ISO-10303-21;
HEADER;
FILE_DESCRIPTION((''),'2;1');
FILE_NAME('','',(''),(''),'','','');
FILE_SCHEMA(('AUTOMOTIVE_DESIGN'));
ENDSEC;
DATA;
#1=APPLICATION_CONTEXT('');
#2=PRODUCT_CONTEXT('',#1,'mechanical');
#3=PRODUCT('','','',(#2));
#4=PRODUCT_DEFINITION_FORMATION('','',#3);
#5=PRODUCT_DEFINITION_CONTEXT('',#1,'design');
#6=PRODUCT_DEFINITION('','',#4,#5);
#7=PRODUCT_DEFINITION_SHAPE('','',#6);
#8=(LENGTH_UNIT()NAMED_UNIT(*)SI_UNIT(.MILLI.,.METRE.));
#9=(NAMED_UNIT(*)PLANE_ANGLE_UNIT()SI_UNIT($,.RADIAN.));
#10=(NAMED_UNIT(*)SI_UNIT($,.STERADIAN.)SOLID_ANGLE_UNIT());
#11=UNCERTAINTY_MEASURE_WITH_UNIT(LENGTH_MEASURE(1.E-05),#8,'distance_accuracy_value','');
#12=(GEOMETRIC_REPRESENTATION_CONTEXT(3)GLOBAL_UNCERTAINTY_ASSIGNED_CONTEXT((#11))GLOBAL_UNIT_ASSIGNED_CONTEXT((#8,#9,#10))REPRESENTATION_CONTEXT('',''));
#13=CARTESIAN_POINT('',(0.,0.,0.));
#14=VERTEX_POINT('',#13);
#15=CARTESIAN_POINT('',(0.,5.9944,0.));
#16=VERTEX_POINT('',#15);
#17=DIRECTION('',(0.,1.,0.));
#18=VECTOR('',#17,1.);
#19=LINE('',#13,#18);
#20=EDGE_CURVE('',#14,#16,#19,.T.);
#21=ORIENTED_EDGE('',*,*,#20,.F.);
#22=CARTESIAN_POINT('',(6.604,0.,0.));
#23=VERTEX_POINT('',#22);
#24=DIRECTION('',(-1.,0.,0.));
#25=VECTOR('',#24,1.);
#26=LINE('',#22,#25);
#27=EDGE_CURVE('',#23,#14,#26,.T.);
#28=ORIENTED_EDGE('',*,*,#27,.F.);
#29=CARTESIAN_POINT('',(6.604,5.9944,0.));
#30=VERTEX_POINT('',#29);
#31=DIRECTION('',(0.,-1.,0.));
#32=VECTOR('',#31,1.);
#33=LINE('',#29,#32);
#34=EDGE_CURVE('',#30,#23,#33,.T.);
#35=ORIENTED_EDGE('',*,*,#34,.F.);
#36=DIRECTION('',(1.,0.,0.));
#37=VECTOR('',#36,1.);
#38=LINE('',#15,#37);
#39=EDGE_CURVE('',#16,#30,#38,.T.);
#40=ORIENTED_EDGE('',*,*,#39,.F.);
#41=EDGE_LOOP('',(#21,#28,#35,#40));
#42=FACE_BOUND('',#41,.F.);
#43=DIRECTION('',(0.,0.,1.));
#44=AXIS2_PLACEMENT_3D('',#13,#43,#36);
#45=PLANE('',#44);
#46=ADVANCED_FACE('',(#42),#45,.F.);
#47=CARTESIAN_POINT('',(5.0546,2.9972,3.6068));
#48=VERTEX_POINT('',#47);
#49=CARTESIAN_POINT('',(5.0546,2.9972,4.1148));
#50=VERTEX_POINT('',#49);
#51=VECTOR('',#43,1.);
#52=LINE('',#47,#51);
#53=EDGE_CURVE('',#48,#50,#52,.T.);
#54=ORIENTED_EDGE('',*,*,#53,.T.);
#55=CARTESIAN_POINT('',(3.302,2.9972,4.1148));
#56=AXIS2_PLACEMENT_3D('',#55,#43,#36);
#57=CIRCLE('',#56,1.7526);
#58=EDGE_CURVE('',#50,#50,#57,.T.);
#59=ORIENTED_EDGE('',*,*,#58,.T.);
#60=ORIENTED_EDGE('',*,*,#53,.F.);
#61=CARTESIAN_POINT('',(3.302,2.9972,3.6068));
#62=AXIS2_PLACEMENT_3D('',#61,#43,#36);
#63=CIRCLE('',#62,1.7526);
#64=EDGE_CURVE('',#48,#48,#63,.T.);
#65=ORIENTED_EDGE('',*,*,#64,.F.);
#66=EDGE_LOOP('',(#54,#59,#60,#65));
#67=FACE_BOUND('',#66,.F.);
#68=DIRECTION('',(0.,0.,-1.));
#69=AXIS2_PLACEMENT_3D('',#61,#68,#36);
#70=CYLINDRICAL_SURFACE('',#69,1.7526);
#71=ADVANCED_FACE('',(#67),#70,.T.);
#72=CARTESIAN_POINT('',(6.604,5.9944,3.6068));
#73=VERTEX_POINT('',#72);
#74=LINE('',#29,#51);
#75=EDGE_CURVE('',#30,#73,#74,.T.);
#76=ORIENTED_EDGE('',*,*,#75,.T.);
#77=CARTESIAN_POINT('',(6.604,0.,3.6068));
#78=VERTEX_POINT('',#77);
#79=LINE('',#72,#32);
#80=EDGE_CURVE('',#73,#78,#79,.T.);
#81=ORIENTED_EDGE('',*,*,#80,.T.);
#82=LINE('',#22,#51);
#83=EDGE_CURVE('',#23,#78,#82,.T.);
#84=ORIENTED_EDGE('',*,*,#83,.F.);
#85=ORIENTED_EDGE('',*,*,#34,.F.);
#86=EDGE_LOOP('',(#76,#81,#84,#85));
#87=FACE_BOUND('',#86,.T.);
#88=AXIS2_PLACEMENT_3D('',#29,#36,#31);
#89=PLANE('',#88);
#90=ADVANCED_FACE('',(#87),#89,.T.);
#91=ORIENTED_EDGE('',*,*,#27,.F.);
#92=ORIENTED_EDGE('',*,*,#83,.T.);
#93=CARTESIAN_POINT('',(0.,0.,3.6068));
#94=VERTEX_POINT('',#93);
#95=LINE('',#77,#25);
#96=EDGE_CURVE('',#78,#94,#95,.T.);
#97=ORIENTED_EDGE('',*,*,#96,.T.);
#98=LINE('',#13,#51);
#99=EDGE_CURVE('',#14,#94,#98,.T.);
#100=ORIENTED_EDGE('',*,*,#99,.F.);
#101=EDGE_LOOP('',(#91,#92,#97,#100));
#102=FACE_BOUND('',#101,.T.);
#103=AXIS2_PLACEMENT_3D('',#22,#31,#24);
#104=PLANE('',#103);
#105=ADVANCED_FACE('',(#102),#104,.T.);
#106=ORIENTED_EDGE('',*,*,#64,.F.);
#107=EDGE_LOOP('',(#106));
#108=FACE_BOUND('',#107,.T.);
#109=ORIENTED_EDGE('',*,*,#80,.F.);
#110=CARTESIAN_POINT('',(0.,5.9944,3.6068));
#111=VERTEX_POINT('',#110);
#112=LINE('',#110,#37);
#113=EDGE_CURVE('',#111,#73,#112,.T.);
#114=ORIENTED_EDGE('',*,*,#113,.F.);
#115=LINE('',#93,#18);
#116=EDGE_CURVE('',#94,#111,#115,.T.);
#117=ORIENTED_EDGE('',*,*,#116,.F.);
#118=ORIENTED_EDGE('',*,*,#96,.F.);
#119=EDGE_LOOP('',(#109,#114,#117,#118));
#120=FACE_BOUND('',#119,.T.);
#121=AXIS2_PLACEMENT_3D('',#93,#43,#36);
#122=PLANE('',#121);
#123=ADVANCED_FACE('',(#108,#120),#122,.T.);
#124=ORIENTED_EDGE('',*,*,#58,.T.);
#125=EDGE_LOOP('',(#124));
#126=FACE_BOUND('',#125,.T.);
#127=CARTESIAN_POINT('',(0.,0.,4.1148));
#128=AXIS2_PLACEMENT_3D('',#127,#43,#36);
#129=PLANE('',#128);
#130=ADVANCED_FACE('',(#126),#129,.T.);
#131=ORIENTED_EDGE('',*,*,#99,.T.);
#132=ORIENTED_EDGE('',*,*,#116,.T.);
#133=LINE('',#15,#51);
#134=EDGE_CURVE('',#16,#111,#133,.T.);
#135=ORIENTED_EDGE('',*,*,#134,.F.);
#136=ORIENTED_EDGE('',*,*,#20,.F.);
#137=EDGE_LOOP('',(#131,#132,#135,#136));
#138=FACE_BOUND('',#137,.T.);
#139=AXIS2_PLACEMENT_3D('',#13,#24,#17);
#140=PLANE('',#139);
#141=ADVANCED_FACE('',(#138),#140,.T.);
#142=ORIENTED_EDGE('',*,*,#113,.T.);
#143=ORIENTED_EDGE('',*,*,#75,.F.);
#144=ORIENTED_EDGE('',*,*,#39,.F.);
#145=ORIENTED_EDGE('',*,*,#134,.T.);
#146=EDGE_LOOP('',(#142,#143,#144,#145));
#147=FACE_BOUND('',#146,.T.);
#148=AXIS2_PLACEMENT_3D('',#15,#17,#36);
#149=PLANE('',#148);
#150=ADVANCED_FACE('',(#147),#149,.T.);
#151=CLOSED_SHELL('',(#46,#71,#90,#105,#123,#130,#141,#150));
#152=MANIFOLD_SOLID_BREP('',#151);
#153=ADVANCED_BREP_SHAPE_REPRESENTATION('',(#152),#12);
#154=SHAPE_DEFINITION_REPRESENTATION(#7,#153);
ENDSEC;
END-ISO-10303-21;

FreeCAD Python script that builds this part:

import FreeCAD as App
import Part
import Sketcher
Q = App.Units.Quantity

doc = App.newDocument("Part")
body = doc.addObject("PartDesign::Body", "Body")

# Sketch on XY plane
sketch1 = body.newObject("Sketcher::SketchObject", "Sketch")
sketch1.AttachmentSupport = (doc.getObject("XY_Plane"), [""])
sketch1.MapMode = "FlatFace"
sketch1.addGeometry(Part.LineSegment(App.Vector(7, 6, 0), App.Vector(0, 6, 0)), False)
sketch1.addGeometry(Part.LineSegment(App.Vector(0, 6, 0), App.Vector(0, 0, 0)), False)
sketch1.addGeometry(Part.LineSegment(App.Vector(0, 0, 0), App.Vector(7, 0, 0)), False)
sketch1.addGeometry(Part.LineSegment(App.Vector(7, 0, 0), App.Vector(7, 6, 0)), False)
sketch1.addConstraint(Sketcher.Constraint("Coincident", 0, 2, 1, 1))
sketch1.addConstraint(Sketcher.Constraint("Coincident", 1, 2, 2, 1))
sketch1.addConstraint(Sketcher.Constraint("Coincident", 2, 2, 3, 1))
sketch1.addConstraint(Sketcher.Constraint("Coincident", 3, 2, 0, 1))
sketch1.addConstraint(Sketcher.Constraint("Horizontal", 0))
sketch1.addConstraint(Sketcher.Constraint("Vertical", 1))
sketch1.addConstraint(Sketcher.Constraint("Horizontal", 2))
sketch1.addConstraint(Sketcher.Constraint("Vertical", 3))
sketch1.addConstraint(Sketcher.Constraint("Coincident", 1, 2, -1, 1))
sketch1.addConstraint(Sketcher.Constraint("DistanceX", 0, 2, 0, 1, Q("0.26 in")))
sketch1.addConstraint(Sketcher.Constraint("DistanceY", 1, 2, 1, 1, Q("0.236 in")))
pad1 = body.newObject("PartDesign::Pad", "Pad")
pad1.Profile = sketch1
pad1.Length = Q("0.142 in")

# Sketch on XY plane
sketch2 = body.newObject("Sketcher::SketchObject", "Sketch001")
sketch2.AttachmentSupport = (doc.getObject("XY_Plane"), [""])
sketch2.MapMode = "FlatFace"
sketch2.AttachmentOffset = App.Placement(App.Vector(0, 0, 0.142 * 25.4), App.Rotation())
sketch2.addGeometry(Part.Circle(App.Vector(3.3, 3, 0), App.Vector(0, 0, 1), 1.8), False)
sketch2.addConstraint(Sketcher.Constraint("Diameter", 0, Q("0.138 in")))
sketch2.addConstraint(Sketcher.Constraint("DistanceX", -1, 1, 0, 3, Q("0.13 in")))
sketch2.addConstraint(Sketcher.Constraint("DistanceY", -1, 1, 0, 3, Q("0.118 in")))
pad2 = body.newObject("PartDesign::Pad", "Pad001")
pad2.Profile = sketch2
pad2.Length = Q("0.02 in")

doc.recompute()
